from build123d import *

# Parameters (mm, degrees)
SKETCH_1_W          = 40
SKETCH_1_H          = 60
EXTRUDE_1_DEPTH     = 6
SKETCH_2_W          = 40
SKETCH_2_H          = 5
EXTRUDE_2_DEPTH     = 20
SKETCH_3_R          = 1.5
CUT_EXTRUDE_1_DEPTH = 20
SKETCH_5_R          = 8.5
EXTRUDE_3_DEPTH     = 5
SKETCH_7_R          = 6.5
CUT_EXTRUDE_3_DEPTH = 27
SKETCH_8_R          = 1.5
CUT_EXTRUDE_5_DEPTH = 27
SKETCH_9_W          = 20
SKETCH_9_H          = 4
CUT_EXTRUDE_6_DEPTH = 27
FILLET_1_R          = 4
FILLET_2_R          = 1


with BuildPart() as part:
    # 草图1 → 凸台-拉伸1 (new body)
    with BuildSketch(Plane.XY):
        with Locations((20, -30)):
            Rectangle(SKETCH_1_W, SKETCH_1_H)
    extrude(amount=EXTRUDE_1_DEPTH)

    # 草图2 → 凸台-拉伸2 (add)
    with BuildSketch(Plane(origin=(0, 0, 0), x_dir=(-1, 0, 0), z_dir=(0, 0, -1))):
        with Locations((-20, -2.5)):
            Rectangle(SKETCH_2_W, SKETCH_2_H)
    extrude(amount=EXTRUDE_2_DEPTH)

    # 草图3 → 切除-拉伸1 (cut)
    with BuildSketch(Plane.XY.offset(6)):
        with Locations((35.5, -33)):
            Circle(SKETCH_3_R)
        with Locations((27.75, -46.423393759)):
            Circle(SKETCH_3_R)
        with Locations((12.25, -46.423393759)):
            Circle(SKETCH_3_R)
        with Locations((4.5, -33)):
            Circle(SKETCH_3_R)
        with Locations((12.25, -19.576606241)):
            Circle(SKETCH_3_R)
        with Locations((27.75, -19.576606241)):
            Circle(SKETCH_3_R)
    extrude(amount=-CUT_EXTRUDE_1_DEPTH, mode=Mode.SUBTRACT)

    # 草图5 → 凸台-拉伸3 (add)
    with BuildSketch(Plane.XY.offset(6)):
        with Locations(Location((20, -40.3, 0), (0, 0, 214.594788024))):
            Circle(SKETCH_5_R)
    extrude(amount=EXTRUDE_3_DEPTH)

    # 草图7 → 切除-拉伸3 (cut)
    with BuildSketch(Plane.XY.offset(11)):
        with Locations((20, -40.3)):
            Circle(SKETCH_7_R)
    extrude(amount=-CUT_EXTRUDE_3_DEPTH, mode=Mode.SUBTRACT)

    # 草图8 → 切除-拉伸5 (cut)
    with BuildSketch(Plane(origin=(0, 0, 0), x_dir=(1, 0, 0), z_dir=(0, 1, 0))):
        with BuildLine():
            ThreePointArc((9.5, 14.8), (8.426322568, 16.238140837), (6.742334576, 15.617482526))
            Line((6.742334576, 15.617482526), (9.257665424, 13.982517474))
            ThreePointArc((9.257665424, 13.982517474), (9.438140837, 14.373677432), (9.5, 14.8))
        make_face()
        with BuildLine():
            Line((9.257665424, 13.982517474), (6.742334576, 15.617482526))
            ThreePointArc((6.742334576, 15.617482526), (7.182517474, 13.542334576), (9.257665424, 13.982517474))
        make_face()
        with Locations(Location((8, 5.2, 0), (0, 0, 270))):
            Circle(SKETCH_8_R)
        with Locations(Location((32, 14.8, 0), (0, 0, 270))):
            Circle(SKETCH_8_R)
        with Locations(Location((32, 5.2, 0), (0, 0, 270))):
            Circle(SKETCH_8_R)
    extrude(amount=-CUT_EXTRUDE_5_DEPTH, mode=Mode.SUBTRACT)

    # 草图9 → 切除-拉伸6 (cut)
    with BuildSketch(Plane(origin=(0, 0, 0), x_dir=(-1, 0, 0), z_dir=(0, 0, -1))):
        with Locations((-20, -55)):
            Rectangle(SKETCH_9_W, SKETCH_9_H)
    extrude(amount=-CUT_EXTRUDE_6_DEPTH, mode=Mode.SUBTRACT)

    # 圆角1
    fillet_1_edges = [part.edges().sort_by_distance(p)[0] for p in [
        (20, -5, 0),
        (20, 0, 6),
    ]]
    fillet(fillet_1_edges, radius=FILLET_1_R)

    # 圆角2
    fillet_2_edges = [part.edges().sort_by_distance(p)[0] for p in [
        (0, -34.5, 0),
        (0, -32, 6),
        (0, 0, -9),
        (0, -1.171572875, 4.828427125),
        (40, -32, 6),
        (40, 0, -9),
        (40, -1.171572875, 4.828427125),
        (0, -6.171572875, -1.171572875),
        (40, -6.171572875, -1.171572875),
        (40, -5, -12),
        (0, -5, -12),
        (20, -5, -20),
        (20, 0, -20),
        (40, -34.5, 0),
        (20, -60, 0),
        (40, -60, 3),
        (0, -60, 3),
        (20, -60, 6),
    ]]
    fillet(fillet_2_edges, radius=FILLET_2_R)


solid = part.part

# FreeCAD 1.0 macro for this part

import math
import FreeCAD as App
import Part
import Sketcher

V = App.Vector
Q = App.Units.Quantity


def edges_at(feature, points):
    """Names of the edges that pass closest to the given points."""
    edges = feature.Shape.Edges
    near = lambda p: min(range(len(edges)), key=lambda i: edges[i].distToShape(Part.Vertex(*p))[0])
    return sorted({f"Edge{near(p) + 1}" for p in points})

doc = App.newDocument("Part")
params = doc.addObject("Spreadsheet::Sheet", "Params")
for row, (alias, value) in enumerate([
    ("sketch1_width", "40 mm"),
    ("sketch1_height", "60 mm"),
    ("pad1_length", "6 mm"),
    ("sketch2_width", "40 mm"),
    ("sketch2_height", "5 mm"),
    ("pad2_length", "20 mm"),
    ("sketch3_diameter", "3 mm"),
    ("pocket1_length", "20 mm"),
    ("sketch4_diameter", "17 mm"),
    ("pad3_length", "5 mm"),
    ("sketch5_diameter", "13 mm"),
    ("pocket2_length", "27 mm"),
    ("sketch6_diameter", "3 mm"),
    ("pocket3_length", "27 mm"),
    ("sketch7_width", "20 mm"),
    ("sketch7_height", "4 mm"),
    ("pocket4_length", "27 mm"),
    ("fillet_radius", "4 mm"),
    ("fillet2_radius", "1 mm"),
], start=1):
    params.set(f"A{row}", alias)
    params.set(f"B{row}", "=" + value)
    params.setAlias(f"B{row}", alias)

body = doc.addObject("PartDesign::Body", "Body")

sketch1 = body.newObject("Sketcher::SketchObject", "Sketch")
sketch1.AttachmentSupport = (doc.getObject("XY_Plane"), [""])
sketch1.MapMode = "FlatFace"
sketch1.addGeometry(Part.LineSegment(V(0, 0, 0), V(0, -60, 0)), False)
sketch1.addGeometry(Part.LineSegment(V(0, -60, 0), V(40, -60, 0)), False)
sketch1.addGeometry(Part.LineSegment(V(40, -60, 0), V(40, 0, 0)), False)
sketch1.addGeometry(Part.LineSegment(V(40, 0, 0), V(0, 0, 0)), False)
sketch1.addConstraint(Sketcher.Constraint("Coincident", 0, 2, 1, 1))
sketch1.addConstraint(Sketcher.Constraint("Coincident", 1, 2, 2, 1))
sketch1.addConstraint(Sketcher.Constraint("Coincident", 2, 2, 3, 1))
sketch1.addConstraint(Sketcher.Constraint("Coincident", 3, 2, 0, 1))
sketch1.addConstraint(Sketcher.Constraint("Vertical", 0))
sketch1.addConstraint(Sketcher.Constraint("Horizontal", 1))
sketch1.addConstraint(Sketcher.Constraint("Vertical", 2))
sketch1.addConstraint(Sketcher.Constraint("Horizontal", 3))
sketch1.addConstraint(Sketcher.Constraint("Coincident", 3, 2, -1, 1))
sketch1.addConstraint(Sketcher.Constraint("DistanceX", 1, 1, 1, 2, Q("40 mm")))
sketch1.addConstraint(Sketcher.Constraint("DistanceY", 0, 2, 0, 1, Q("60 mm")))
sketch1.setExpression("Constraints[9]", "Params.sketch1_width")
sketch1.setExpression("Constraints[10]", "Params.sketch1_height")
pad1 = body.newObject("PartDesign::Pad", "Pad")
pad1.Profile = sketch1
pad1.setExpression("Length", "Params.pad1_length")

sketch2 = body.newObject("Sketcher::SketchObject", "Sketch001")
sketch2.AttachmentSupport = (doc.getObject("XY_Plane"), [""])
sketch2.MapMode = "FlatFace"
sketch2.addGeometry(Part.LineSegment(V(40, 0, 0), V(40, -5, 0)), False)
sketch2.addGeometry(Part.LineSegment(V(40, -5, 0), V(0, -5, 0)), False)
sketch2.addGeometry(Part.LineSegment(V(0, -5, 0), V(0, 0, 0)), False)
sketch2.addGeometry(Part.LineSegment(V(0, 0, 0), V(40, 0, 0)), False)
sketch2.addConstraint(Sketcher.Constraint("Coincident", 0, 2, 1, 1))
sketch2.addConstraint(Sketcher.Constraint("Coincident", 1, 2, 2, 1))
sketch2.addConstraint(Sketcher.Constraint("Coincident", 2, 2, 3, 1))
sketch2.addConstraint(Sketcher.Constraint("Coincident", 3, 2, 0, 1))
sketch2.addConstraint(Sketcher.Constraint("Vertical", 0))
sketch2.addConstraint(Sketcher.Constraint("Horizontal", 1))
sketch2.addConstraint(Sketcher.Constraint("Vertical", 2))
sketch2.addConstraint(Sketcher.Constraint("Horizontal", 3))
sketch2.addConstraint(Sketcher.Constraint("Coincident", 2, 2, -1, 1))
sketch2.addConstraint(Sketcher.Constraint("DistanceX", 1, 2, 1, 1, Q("40 mm")))
sketch2.addConstraint(Sketcher.Constraint("DistanceY", 0, 2, 0, 1, Q("5 mm")))
sketch2.setExpression("Constraints[9]", "Params.sketch2_width")
sketch2.setExpression("Constraints[10]", "Params.sketch2_height")
pad2 = body.newObject("PartDesign::Pad", "Pad001")
pad2.Profile = sketch2
pad2.setExpression("Length", "Params.pad2_length")
pad2.Reversed = True

sketch3 = body.newObject("Sketcher::SketchObject", "Sketch002")
sketch3.AttachmentSupport = (doc.getObject("XY_Plane"), [""])
sketch3.MapMode = "FlatFace"
sketch3.AttachmentOffset = App.Placement(V(0, 0, 6), App.Rotation())
sketch3.addGeometry(Part.Circle(V(35.5, -33, 0), V(0, 0, 1), 1.5), False)
sketch3.addGeometry(Part.Circle(V(27.8, -46.4, 0), V(0, 0, 1), 1.5), False)
sketch3.addGeometry(Part.Circle(V(12.2, -46.4, 0), V(0, 0, 1), 1.5), False)
sketch3.addGeometry(Part.Circle(V(4.5, -33, 0), V(0, 0, 1), 1.5), False)
sketch3.addGeometry(Part.Circle(V(12.2, -19.6, 0), V(0, 0, 1), 1.5), False)
sketch3.addGeometry(Part.Circle(V(27.8, -19.6, 0), V(0, 0, 1), 1.5), False)
sketch3.addConstraint(Sketcher.Constraint("Equal", 0, 1))
sketch3.addConstraint(Sketcher.Constraint("Equal", 1, 2))
sketch3.addConstraint(Sketcher.Constraint("Equal", 2, 3))
sketch3.addConstraint(Sketcher.Constraint("Equal", 3, 4))
sketch3.addConstraint(Sketcher.Constraint("Equal", 4, 5))
sketch3.addConstraint(Sketcher.Constraint("Horizontal", 1, 3, 2, 3))
sketch3.addConstraint(Sketcher.Constraint("Horizontal", 0, 3, 3, 3))
sketch3.addConstraint(Sketcher.Constraint("Horizontal", 4, 3, 5, 3))
sketch3.addConstraint(Sketcher.Constraint("Vertical", 2, 3, 4, 3))
sketch3.addConstraint(Sketcher.Constraint("Vertical", 1, 3, 5, 3))
sketch3.addConstraint(Sketcher.Constraint("Diameter", 0, Q("3 mm")))
sketch3.addConstraint(Sketcher.Constraint("DistanceY", 0, 3, -1, 1, Q("33 mm")))
sketch3.addConstraint(Sketcher.Constraint("DistanceX", 3, 3, 0, 3, Q("31 mm")))
sketch3.addConstraint(Sketcher.Constraint("DistanceX", -1, 1, 0, 3, Q("35.5 mm")))
sketch3.addConstraint(Sketcher.Constraint("DistanceX", 2, 3, 1, 3, Q("15.5 mm")))
sketch3.addConstraint(Sketcher.Constraint("DistanceX", -1, 1, 1, 3, Q("27.75 mm")))
sketch3.addConstraint(Sketcher.Constraint("DistanceY", 1, 3, -1, 1, Q("46.423394 mm")))
sketch3.addConstraint(Sketcher.Constraint("DistanceY", 4, 3, -1, 1, Q("19.576606 mm")))
sketch3.setExpression("Constraints[10]", "Params.sketch3_diameter")
pocket1 = body.newObject("PartDesign::Pocket", "Pocket")
pocket1.Profile = sketch3
pocket1.setExpression("Length", "Params.pocket1_length")

sketch4 = body.newObject("Sketcher::SketchObject", "Sketch003")
sketch4.AttachmentSupport = (doc.getObject("XY_Plane"), [""])
sketch4.MapMode = "FlatFace"
sketch4.AttachmentOffset = App.Placement(V(0, 0, 6), App.Rotation())
sketch4.addGeometry(Part.Circle(V(20, -40, 0), V(0, 0, 1), 8), False)
sketch4.addConstraint(Sketcher.Constraint("Diameter", 0, Q("17 mm")))
sketch4.addConstraint(Sketcher.Constraint("DistanceX", -1, 1, 0, 3, Q("20 mm")))
sketch4.addConstraint(Sketcher.Constraint("DistanceY", 0, 3, -1, 1, Q("40.3 mm")))
sketch4.setExpression("Constraints[0]", "Params.sketch4_diameter")
pad3 = body.newObject("PartDesign::Pad", "Pad002")
pad3.Profile = sketch4
pad3.setExpression("Length", "Params.pad3_length")

sketch5 = body.newObject("Sketcher::SketchObject", "Sketch004")
sketch5.AttachmentSupport = (doc.getObject("XY_Plane"), [""])
sketch5.MapMode = "FlatFace"
sketch5.AttachmentOffset = App.Placement(V(0, 0, 11), App.Rotation())
sketch5.addGeometry(Part.Circle(V(20, -40, 0), V(0, 0, 1), 6), False)
sketch5.addConstraint(Sketcher.Constraint("Diameter", 0, Q("13 mm")))
sketch5.addConstraint(Sketcher.Constraint("DistanceX", -1, 1, 0, 3, Q("20 mm")))
sketch5.addConstraint(Sketcher.Constraint("DistanceY", 0, 3, -1, 1, Q("40.3 mm")))
sketch5.setExpression("Constraints[0]", "Params.sketch5_diameter")
pocket2 = body.newObject("PartDesign::Pocket", "Pocket001")
pocket2.Profile = sketch5
pocket2.setExpression("Length", "Params.pocket2_length")

sketch6 = body.newObject("Sketcher::SketchObject", "Sketch005")
sketch6.AttachmentSupport = (doc.getObject("XZ_Plane"), [""])
sketch6.MapMode = "FlatFace"
sketch6.addGeometry(Part.ArcOfCircle(Part.Circle(V(8, -14.8, 0), V(0, 0, 1), 1.5), math.radians(-147), math.radians(0)), False)
sketch6.addGeometry(Part.ArcOfCircle(Part.Circle(V(8, -14.8, 0), V(0, 0, 1), 1.5), math.radians(33), math.radians(213)), False)
sketch6.addGeometry(Part.ArcOfCircle(Part.Circle(V(8, -14.8, 0), V(0, 0, 1), 1.5), math.radians(0), math.radians(33)), False)
sketch6.addGeometry(Part.Circle(V(8, -5.2, 0), V(0, 0, 1), 1.5), False)
sketch6.addGeometry(Part.Circle(V(32, -14.8, 0), V(0, 0, 1), 1.5), False)
sketch6.addGeometry(Part.Circle(V(32, -5.2, 0), V(0, 0, 1), 1.5), False)
sketch6.addConstraint(Sketcher.Constraint("Tangent", 0, 1, 1, 2))
sketch6.addConstraint(Sketcher.Constraint("Tangent", 1, 1, 2, 2))
sketch6.addConstraint(Sketcher.Constraint("Tangent", 2, 1, 0, 2))
sketch6.addConstraint(Sketcher.Constraint("Equal", 2, 3))
sketch6.addConstraint(Sketcher.Constraint("Equal", 3, 4))
sketch6.addConstraint(Sketcher.Constraint("Equal", 4, 5))
sketch6.addConstraint(Sketcher.Constraint("Horizontal", 2, 3, 4, 3))
sketch6.addConstraint(Sketcher.Constraint("Horizontal", 3, 3, 5, 3))
sketch6.addConstraint(Sketcher.Constraint("Horizontal", 4, 3, 2, 1))
sketch6.addConstraint(Sketcher.Constraint("Vertical", 2, 3, 3, 3))
sketch6.addConstraint(Sketcher.Constraint("Vertical", 4, 3, 5, 3))
sketch6.addConstraint(Sketcher.Constraint("Diameter", 3, Q("3 mm")))
sketch6.addConstraint(Sketcher.Constraint("DistanceX", -1, 1, 0, 3, Q("8 mm")))
sketch6.addConstraint(Sketcher.Constraint("DistanceX", -1, 1, 4, 3, Q("32 mm")))
sketch6.addConstraint(Sketcher.Constraint("DistanceY", 0, 3, -1, 1, Q("14.8 mm")))
sketch6.addConstraint(Sketcher.Constraint("DistanceY", 3, 3, -1, 1, Q("5.2 mm")))
sketch6.addConstraint(Sketcher.Constraint("DistanceX", 0, 1, 1, 1, Q("2.515331 mm")))
sketch6.addConstraint(Sketcher.Constraint("DistanceX", -1, 1, 0, 1, Q("6.742335 mm")))
sketch6.setExpression("Constraints[11]", "Params.sketch6_diameter")
pocket3 = body.newObject("PartDesign::Pocket", "Pocket002")
pocket3.Profile = sketch6
pocket3.setExpression("Length", "Params.pocket3_length")
pocket3.Reversed = True

sketch7 = body.newObject("Sketcher::SketchObject", "Sketch006")
sketch7.AttachmentSupport = (doc.getObject("XY_Plane"), [""])
sketch7.MapMode = "FlatFace"
sketch7.addGeometry(Part.LineSegment(V(30, -53, 0), V(30, -57, 0)), False)
sketch7.addGeometry(Part.LineSegment(V(30, -57, 0), V(10, -57, 0)), False)
sketch7.addGeometry(Part.LineSegment(V(10, -57, 0), V(10, -53, 0)), False)
sketch7.addGeometry(Part.LineSegment(V(10, -53, 0), V(30, -53, 0)), False)
sketch7.addConstraint(Sketcher.Constraint("Coincident", 0, 2, 1, 1))
sketch7.addConstraint(Sketcher.Constraint("Coincident", 1, 2, 2, 1))
sketch7.addConstraint(Sketcher.Constraint("Coincident", 2, 2, 3, 1))
sketch7.addConstraint(Sketcher.Constraint("Coincident", 3, 2, 0, 1))
sketch7.addConstraint(Sketcher.Constraint("Vertical", 0))
sketch7.addConstraint(Sketcher.Constraint("Horizontal", 1))
sketch7.addConstraint(Sketcher.Constraint("Vertical", 2))
sketch7.addConstraint(Sketcher.Constraint("Horizontal", 3))
sketch7.addConstraint(Sketcher.Constraint("DistanceX", 1, 2, 1, 1, Q("20 mm")))
sketch7.addConstraint(Sketcher.Constraint("DistanceY", 0, 2, 0, 1, Q("4 mm")))
sketch7.addConstraint(Sketcher.Constraint("DistanceX", -1, 1, 0, 2, Q("30 mm")))
sketch7.addConstraint(Sketcher.Constraint("DistanceY", 0, 2, -1, 1, Q("57 mm")))
sketch7.setExpression("Constraints[8]", "Params.sketch7_width")
sketch7.setExpression("Constraints[9]", "Params.sketch7_height")
pocket4 = body.newObject("PartDesign::Pocket", "Pocket003")
pocket4.Profile = sketch7
pocket4.setExpression("Length", "Params.pocket4_length")
pocket4.Reversed = True
doc.recompute()

fillet = body.newObject("PartDesign::Fillet", "Fillet")
fillet.Base = (pocket4, edges_at(pocket4, [(20, -5, 0), (20, 0, 6)]))
fillet.setExpression("Radius", "Params.fillet_radius")
doc.recompute()

fillet2 = body.newObject("PartDesign::Fillet", "Fillet001")
fillet2.Base = (fillet, edges_at(fillet, [
    (0, -34.5, 0),
    (0, -32, 6),
    (0, 0, -9),
    (0, -1.172, 4.828),
    (40, -32, 6),
    (40, 0, -9),
    (40, -1.172, 4.828),
    (0, -6.172, -1.172),
    (40, -6.172, -1.172),
    (40, -5, -12),
    (0, -5, -12),
    (20, -5, -20),
    (20, 0, -20),
    (40, -34.5, 0),
    (20, -60, 0),
    (40, -60, 3),
    (0, -60, 3),
    (20, -60, 6),
]))
fillet2.setExpression("Radius", "Params.fillet2_radius")

doc.recompute()
